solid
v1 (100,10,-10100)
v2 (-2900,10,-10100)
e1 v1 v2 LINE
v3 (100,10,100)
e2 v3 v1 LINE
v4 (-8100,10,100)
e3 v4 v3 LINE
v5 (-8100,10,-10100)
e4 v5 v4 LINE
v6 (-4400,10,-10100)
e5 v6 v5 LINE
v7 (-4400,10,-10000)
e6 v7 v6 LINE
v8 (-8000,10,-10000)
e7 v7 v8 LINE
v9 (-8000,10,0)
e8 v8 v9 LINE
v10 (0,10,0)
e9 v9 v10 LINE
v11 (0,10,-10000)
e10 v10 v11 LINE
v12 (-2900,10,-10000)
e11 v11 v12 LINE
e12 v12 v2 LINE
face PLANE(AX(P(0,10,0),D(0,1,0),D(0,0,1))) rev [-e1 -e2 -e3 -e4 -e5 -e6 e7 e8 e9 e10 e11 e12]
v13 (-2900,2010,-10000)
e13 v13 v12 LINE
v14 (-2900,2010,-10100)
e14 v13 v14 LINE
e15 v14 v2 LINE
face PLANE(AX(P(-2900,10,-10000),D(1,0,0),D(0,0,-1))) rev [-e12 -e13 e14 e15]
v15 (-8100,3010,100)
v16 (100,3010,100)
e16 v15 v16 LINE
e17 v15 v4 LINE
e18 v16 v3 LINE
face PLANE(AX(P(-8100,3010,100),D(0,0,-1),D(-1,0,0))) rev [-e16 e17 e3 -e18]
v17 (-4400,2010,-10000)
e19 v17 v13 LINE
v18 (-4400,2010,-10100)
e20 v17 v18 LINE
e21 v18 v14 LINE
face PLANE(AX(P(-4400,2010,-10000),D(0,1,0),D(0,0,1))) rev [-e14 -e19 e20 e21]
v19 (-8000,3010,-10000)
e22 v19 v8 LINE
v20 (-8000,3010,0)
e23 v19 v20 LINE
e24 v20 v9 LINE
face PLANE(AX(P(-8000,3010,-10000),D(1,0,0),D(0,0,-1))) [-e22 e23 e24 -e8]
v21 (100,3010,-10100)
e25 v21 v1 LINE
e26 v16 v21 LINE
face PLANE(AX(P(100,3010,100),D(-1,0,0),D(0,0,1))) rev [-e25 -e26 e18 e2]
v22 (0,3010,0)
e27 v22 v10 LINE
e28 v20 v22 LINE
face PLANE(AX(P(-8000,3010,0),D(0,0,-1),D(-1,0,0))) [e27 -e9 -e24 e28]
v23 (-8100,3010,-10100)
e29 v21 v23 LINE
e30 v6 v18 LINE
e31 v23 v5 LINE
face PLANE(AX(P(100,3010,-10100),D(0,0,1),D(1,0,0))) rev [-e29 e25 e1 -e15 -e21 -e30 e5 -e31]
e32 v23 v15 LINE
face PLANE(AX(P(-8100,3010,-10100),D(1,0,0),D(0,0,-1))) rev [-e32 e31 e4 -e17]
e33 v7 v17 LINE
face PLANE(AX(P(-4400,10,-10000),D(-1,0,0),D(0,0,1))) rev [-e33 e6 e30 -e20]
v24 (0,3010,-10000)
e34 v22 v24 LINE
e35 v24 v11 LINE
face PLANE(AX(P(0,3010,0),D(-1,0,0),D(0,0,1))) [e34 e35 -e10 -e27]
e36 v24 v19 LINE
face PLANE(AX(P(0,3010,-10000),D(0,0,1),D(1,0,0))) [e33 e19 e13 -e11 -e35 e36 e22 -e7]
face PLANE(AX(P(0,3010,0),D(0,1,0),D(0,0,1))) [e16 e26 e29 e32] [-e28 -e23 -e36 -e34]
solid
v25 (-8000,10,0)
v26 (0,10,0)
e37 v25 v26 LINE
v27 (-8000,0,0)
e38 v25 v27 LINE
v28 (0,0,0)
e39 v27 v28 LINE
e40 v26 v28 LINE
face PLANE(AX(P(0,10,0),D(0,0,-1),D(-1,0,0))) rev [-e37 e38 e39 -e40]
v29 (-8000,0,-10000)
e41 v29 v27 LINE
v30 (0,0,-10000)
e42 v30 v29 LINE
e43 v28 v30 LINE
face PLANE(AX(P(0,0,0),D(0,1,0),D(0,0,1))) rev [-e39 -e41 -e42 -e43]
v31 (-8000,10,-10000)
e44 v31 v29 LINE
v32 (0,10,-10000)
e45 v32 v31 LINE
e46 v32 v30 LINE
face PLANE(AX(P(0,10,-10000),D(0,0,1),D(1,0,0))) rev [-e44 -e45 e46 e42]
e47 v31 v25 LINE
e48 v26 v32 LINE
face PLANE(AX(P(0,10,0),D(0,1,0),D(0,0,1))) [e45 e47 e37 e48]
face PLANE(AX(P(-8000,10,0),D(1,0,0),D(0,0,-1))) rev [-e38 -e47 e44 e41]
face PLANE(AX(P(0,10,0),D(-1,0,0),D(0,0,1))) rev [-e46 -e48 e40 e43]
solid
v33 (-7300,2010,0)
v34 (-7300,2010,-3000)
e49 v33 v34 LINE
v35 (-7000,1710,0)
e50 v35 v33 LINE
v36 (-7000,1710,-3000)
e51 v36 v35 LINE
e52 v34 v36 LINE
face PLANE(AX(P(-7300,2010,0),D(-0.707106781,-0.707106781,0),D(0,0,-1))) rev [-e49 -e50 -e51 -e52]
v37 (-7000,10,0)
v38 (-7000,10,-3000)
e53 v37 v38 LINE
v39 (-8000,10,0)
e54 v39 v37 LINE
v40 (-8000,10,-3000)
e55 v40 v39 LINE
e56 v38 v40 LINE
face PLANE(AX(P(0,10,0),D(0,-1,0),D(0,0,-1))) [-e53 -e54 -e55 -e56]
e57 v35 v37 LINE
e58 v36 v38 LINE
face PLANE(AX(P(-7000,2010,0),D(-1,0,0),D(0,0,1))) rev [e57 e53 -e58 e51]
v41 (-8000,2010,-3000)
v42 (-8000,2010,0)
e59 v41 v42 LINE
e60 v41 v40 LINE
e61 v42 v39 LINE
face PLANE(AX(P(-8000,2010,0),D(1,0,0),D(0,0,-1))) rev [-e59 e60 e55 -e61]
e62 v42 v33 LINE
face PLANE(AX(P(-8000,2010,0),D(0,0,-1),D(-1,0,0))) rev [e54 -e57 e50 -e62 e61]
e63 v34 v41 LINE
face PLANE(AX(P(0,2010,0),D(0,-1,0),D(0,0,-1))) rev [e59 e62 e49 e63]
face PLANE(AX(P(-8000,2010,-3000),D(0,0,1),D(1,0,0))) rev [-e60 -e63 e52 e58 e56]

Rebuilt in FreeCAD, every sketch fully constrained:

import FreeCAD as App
import Part
import Sketcher
Q = App.Units.Quantity


def edges_at(feature, points):
    """Names of the edges that pass closest to the given points."""
    edges = feature.Shape.Edges
    near = lambda p: min(range(len(edges)), key=lambda i: edges[i].distToShape(Part.Vertex(*p))[0])
    return sorted({f"Edge{near(p) + 1}" for p in points})

doc = App.newDocument("Part")
body = doc.addObject("PartDesign::Body", "Body")

# Sketch on XZ plane
sketch1 = doc.addObject("Sketcher::SketchObject", "Sketch")
body.addObject(sketch1)
sketch1.AttachmentSupport = (doc.XZ_Plane, [""])
sketch1.MapMode = "FlatFace"
sketch1.addGeometry([
    Part.LineSegment(App.Vector(-8000, -10000, 0), App.Vector(-8000, 0, 0)),
    Part.LineSegment(App.Vector(-8000, 0, 0), App.Vector(0, 0, 0)),
    Part.LineSegment(App.Vector(0, 0, 0), App.Vector(0, -10000, 0)),
    Part.LineSegment(App.Vector(0, -10000, 0), App.Vector(-8000, -10000, 0)),
], False)
sketch1.addConstraint([
    Sketcher.Constraint("Coincident", 0, 2, 1, 1),
    Sketcher.Constraint("Coincident", 1, 2, 2, 1),
    Sketcher.Constraint("Coincident", 2, 2, 3, 1),
    Sketcher.Constraint("Coincident", 3, 2, 0, 1),
    Sketcher.Constraint("Vertical", 0),
    Sketcher.Constraint("Horizontal", 1),
    Sketcher.Constraint("Vertical", 2),
    Sketcher.Constraint("Horizontal", 3),
    Sketcher.Constraint("Coincident", 1, 2, -1, 1),
    Sketcher.Constraint("DistanceX", 1, 1, 1, 2, Q("8000 mm")),
    Sketcher.Constraint("DistanceY", 0, 1, 0, 2, Q("10000 mm")),
])
pad1 = doc.addObject("PartDesign::Pad", "Pad")
body.addObject(pad1)
pad1.Profile = sketch1
pad1.Length = 10
pad1.Reversed = True
body2 = doc.addObject("PartDesign::Body", "Body001")

# Sketch on XZ plane
sketch2 = doc.addObject("Sketcher::SketchObject", "Sketch001")
body2.addObject(sketch2)
sketch2.AttachmentSupport = (doc.getObject("XZ_Plane001"), [""])
sketch2.MapMode = "FlatFace"
sketch2.AttachmentOffset = App.Placement(App.Vector(0, 0, -10), App.Rotation())
sketch2.addGeometry([
    Part.LineSegment(App.Vector(-8100, -10100, 0), App.Vector(-8100, 100, 0)),  # 0
    Part.LineSegment(App.Vector(-8100, 100, 0), App.Vector(100, 100, 0)),  # 1
    Part.LineSegment(App.Vector(100, 100, 0), App.Vector(100, -10100, 0)),  # 2
    Part.LineSegment(App.Vector(100, -10100, 0), App.Vector(-8100, -10100, 0)),  # 3
    Part.LineSegment(App.Vector(0, 0, 0), App.Vector(-8000, 0, 0)),  # 4
    Part.LineSegment(App.Vector(-8000, 0, 0), App.Vector(-8000, -10000, 0)),  # 5
    Part.LineSegment(App.Vector(-8000, -10000, 0), App.Vector(0, -10000, 0)),  # 6
    Part.LineSegment(App.Vector(0, -10000, 0), App.Vector(0, 0, 0)),  # 7
], False)
sketch2.addConstraint([
    Sketcher.Constraint("Coincident", 0, 2, 1, 1),
    Sketcher.Constraint("Coincident", 1, 2, 2, 1),
    Sketcher.Constraint("Coincident", 2, 2, 3, 1),
    Sketcher.Constraint("Coincident", 3, 2, 0, 1),
    Sketcher.Constraint("Coincident", 4, 2, 5, 1),
    Sketcher.Constraint("Coincident", 5, 2, 6, 1),
    Sketcher.Constraint("Coincident", 6, 2, 7, 1),
    Sketcher.Constraint("Coincident", 7, 2, 4, 1),
    Sketcher.Constraint("Vertical", 0),
    Sketcher.Constraint("Horizontal", 1),
    Sketcher.Constraint("Vertical", 2),
    Sketcher.Constraint("Horizontal", 3),
    Sketcher.Constraint("Horizontal", 4),
    Sketcher.Constraint("Vertical", 5),
    Sketcher.Constraint("Horizontal", 6),
    Sketcher.Constraint("Vertical", 7),
    Sketcher.Constraint("Coincident", 7, 2, -1, 1),
    Sketcher.Constraint("DistanceX", 1, 1, 1, 2, Q("8200 mm")),
    Sketcher.Constraint("DistanceX", 4, 2, 4, 1, Q("8000 mm")),
    Sketcher.Constraint("DistanceY", 0, 1, 0, 2, Q("10200 mm")),
    Sketcher.Constraint("DistanceY", 5, 2, 5, 1, Q("10000 mm")),
    Sketcher.Constraint("DistanceX", 0, 2, -1, 1, Q("8100 mm")),
    Sketcher.Constraint("DistanceY", -1, 1, 0, 2, Q("100 mm")),
])
pad2 = doc.addObject("PartDesign::Pad", "Pad001")
body2.addObject(pad2)
pad2.Profile = sketch2
pad2.Length = 3000
pad2.Reversed = True

# Sketch on XY plane
sketch3 = doc.addObject("Sketcher::SketchObject", "Sketch002")
body2.addObject(sketch3)
sketch3.AttachmentSupport = (doc.getObject("XY_Plane001"), [""])
sketch3.MapMode = "FlatFace"
sketch3.AttachmentOffset = App.Placement(App.Vector(0, 0, -10100), App.Rotation())
sketch3.addGeometry([
    Part.LineSegment(App.Vector(-2900, 2010, 0), App.Vector(-2900, 10, 0)),
    Part.LineSegment(App.Vector(-2900, 10, 0), App.Vector(-4400, 10, 0)),
    Part.LineSegment(App.Vector(-4400, 10, 0), App.Vector(-4400, 2010, 0)),
    Part.LineSegment(App.Vector(-4400, 2010, 0), App.Vector(-2900, 2010, 0)),
], False)
sketch3.addConstraint([
    Sketcher.Constraint("Coincident", 0, 2, 1, 1),
    Sketcher.Constraint("Coincident", 1, 2, 2, 1),
    Sketcher.Constraint("Coincident", 2, 2, 3, 1),
    Sketcher.Constraint("Coincident", 3, 2, 0, 1),
    Sketcher.Constraint("Vertical", 0),
    Sketcher.Constraint("Horizontal", 1),
    Sketcher.Constraint("Vertical", 2),
    Sketcher.Constraint("Horizontal", 3),
    Sketcher.Constraint("DistanceX", 1, 2, 1, 1, Q("1500 mm")),
    Sketcher.Constraint("DistanceY", 0, 2, 0, 1, Q("2000 mm")),
    Sketcher.Constraint("DistanceX", 0, 2, -1, 1, Q("2900 mm")),
    Sketcher.Constraint("DistanceY", -1, 1, 0, 2, Q("10 mm")),
])
pocket1 = doc.addObject("PartDesign::Pocket", "Pocket")
body2.addObject(pocket1)
pocket1.Profile = sketch3
pocket1.Length = 100
pocket1.Reversed = True
body3 = doc.addObject("PartDesign::Body", "Body002")

# Sketch on XZ plane
sketch4 = doc.addObject("Sketcher::SketchObject", "Sketch003")
body3.addObject(sketch4)
sketch4.AttachmentSupport = (doc.getObject("XZ_Plane002"), [""])
sketch4.MapMode = "FlatFace"
sketch4.AttachmentOffset = App.Placement(App.Vector(0, 0, -10), App.Rotation())
sketch4.addGeometry([
    Part.LineSegment(App.Vector(-8000, -3000, 0), App.Vector(-8000, 0, 0)),
    Part.LineSegment(App.Vector(-8000, 0, 0), App.Vector(-7000, 0, 0)),
    Part.LineSegment(App.Vector(-7000, 0, 0), App.Vector(-7000, -3000, 0)),
    Part.LineSegment(App.Vector(-7000, -3000, 0), App.Vector(-8000, -3000, 0)),
], False)
sketch4.addConstraint([
    Sketcher.Constraint("Coincident", 0, 2, 1, 1),
    Sketcher.Constraint("Coincident", 1, 2, 2, 1),
    Sketcher.Constraint("Coincident", 2, 2, 3, 1),
    Sketcher.Constraint("Coincident", 3, 2, 0, 1),
    Sketcher.Constraint("Vertical", 0),
    Sketcher.Constraint("Horizontal", 1),
    Sketcher.Constraint("Vertical", 2),
    Sketcher.Constraint("Horizontal", 3),
    Sketcher.Constraint("PointOnObject", 0, 2, -1),
    Sketcher.Constraint("DistanceX", 1, 1, 1, 2, Q("1000 mm")),
    Sketcher.Constraint("DistanceY", 0, 1, 0, 2, Q("3000 mm")),
    Sketcher.Constraint("DistanceX", 0, 2, -1, 1, Q("8000 mm")),
])
pad3 = doc.addObject("PartDesign::Pad", "Pad002")
body3.addObject(pad3)
pad3.Profile = sketch4
pad3.Length = 2000
pad3.Reversed = True
doc.recompute()

chamfer = doc.addObject("PartDesign::Chamfer", "Chamfer")
body3.addObject(chamfer)
chamfer.Base = (pad3, edges_at(pad3, [(-7000, 2010, -1500)]))
chamfer.Size = 300

doc.recompute()
